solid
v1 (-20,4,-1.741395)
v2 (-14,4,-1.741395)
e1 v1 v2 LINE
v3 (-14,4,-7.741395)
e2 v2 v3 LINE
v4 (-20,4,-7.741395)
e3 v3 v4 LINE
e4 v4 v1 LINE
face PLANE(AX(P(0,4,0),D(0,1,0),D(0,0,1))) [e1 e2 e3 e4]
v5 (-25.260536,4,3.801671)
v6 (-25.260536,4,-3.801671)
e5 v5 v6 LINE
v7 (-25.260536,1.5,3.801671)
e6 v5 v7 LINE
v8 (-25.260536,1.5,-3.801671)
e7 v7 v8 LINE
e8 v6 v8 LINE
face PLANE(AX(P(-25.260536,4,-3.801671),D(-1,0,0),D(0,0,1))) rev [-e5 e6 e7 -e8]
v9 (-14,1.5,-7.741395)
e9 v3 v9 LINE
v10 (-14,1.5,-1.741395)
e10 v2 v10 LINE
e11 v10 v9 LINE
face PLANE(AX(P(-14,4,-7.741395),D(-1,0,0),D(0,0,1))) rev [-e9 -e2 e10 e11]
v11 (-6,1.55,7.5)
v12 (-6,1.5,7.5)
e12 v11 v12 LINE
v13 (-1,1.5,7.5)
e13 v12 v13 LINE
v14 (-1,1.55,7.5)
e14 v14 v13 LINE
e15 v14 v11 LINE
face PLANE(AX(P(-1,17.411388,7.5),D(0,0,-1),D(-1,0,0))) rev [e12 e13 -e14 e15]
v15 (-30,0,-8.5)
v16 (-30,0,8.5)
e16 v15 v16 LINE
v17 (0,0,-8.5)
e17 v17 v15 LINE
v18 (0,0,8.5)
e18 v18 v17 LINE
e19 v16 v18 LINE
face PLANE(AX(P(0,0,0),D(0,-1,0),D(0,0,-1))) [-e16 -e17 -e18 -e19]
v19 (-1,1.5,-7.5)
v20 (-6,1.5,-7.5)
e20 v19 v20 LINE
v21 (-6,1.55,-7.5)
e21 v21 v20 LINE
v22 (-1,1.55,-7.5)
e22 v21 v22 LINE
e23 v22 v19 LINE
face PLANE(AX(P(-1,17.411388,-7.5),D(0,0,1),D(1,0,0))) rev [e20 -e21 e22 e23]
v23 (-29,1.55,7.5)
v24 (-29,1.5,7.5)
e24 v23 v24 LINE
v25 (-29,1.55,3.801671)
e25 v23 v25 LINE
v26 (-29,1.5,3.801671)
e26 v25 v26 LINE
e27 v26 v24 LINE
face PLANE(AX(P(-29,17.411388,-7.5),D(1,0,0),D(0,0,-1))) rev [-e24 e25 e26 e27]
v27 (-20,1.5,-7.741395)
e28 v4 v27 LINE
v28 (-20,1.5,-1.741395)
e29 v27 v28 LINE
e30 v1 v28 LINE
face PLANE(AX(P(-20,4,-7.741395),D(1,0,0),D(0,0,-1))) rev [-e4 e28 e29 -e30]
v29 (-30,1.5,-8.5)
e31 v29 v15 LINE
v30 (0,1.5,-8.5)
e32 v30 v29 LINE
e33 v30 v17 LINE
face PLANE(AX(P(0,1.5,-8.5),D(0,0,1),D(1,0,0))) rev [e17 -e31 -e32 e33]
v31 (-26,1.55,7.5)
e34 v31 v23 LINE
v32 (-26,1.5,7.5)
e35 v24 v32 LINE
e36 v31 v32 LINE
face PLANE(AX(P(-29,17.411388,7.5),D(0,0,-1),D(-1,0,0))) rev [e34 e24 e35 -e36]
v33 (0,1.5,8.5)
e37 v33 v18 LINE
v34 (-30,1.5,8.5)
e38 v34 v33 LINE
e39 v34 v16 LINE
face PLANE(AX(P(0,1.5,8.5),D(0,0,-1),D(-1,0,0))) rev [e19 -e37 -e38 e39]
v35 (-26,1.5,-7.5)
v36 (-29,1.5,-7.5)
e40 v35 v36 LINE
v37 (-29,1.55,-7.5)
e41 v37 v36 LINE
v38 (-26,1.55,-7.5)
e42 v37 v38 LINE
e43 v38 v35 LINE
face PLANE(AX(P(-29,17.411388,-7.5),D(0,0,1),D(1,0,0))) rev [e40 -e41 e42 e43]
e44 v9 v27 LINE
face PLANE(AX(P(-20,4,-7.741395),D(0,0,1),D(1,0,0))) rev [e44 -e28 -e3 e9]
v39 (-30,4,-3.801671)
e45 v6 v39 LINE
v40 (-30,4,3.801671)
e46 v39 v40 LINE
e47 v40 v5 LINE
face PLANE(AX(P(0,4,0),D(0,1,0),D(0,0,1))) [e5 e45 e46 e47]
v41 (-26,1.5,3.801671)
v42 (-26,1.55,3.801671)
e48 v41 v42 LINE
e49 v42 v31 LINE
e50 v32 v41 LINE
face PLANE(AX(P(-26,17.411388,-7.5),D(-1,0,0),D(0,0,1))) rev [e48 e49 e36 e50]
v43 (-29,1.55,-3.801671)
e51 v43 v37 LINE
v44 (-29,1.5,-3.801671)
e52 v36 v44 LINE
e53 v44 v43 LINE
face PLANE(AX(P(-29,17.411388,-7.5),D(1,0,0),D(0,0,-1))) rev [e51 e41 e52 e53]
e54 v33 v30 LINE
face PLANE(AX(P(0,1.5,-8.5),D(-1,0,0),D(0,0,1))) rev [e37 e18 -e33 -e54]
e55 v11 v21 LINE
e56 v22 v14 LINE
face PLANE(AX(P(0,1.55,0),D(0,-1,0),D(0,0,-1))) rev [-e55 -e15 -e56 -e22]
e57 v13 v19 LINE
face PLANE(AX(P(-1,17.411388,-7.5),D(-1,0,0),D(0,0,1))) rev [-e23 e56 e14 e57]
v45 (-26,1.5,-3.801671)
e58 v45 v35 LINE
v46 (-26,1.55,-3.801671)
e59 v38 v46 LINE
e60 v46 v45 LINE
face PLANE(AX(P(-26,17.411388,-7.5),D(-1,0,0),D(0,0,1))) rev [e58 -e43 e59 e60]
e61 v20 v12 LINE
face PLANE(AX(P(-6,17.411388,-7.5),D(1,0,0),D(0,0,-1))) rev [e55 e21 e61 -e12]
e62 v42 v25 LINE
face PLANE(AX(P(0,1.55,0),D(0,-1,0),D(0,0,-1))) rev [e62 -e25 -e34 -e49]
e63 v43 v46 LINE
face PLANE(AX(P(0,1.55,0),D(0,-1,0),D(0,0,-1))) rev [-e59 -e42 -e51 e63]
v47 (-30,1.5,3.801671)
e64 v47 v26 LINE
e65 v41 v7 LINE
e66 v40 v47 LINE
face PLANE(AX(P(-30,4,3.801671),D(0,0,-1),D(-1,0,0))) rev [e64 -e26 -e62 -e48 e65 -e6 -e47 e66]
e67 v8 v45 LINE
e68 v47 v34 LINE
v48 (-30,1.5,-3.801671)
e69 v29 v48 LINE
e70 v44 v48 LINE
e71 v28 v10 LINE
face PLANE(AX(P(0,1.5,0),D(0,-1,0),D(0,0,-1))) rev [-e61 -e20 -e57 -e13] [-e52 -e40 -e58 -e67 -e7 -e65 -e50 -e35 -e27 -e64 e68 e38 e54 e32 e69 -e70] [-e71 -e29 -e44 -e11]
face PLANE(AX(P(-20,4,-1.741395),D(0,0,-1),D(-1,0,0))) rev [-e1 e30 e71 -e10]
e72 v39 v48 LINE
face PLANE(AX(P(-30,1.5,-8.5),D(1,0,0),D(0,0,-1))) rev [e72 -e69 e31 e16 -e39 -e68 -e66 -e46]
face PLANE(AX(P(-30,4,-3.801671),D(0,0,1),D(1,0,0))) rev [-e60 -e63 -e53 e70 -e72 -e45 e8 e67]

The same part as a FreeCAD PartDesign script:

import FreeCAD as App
import Part
import Sketcher


def add_polygon(sketch, points):
    """Adds a closed chain of lines whose ends are joined by coincident constraints."""
    first, n = sketch.GeometryCount, len(points)
    for a, b in zip(points, points[1:] + points[:1]):
        sketch.addGeometry(Part.LineSegment(App.Vector(*a, 0), App.Vector(*b, 0)), False)
    for i in range(n):
        sketch.addConstraint(Sketcher.Constraint("Coincident", first + i, 2, first + (i + 1) % n, 1))

doc = App.newDocument("Part")
body = doc.addObject("PartDesign::Body", "Body")

# Sketch on XZ plane
sketch1 = body.newObject("Sketcher::SketchObject", "Sketch")
sketch1.AttachmentSupport = (doc.getObject("XZ_Plane"), [""])
sketch1.MapMode = "FlatFace"
add_polygon(sketch1, [(-30, -8.5), (-30, 8.5), (0, 8.5), (0, -8.5)])  # lines 0-3
sketch1.addConstraint([
    Sketcher.Constraint("Vertical", 0),
    Sketcher.Constraint("Horizontal", 1),
    Sketcher.Constraint("Vertical", 2),
    Sketcher.Constraint("Horizontal", 3),
    Sketcher.Constraint("Symmetric", 1, 2, 2, 2, -1, 1),
    Sketcher.Constraint("DistanceX", 1, 1, 1, 2, 30.0),
    Sketcher.Constraint("DistanceY", 0, 1, 0, 2, 17.0),
])
pad1 = body.newObject("PartDesign::Pad", "Pad")
pad1.Profile = sketch1
pad1.Length = 1.5
pad1.Reversed = True

# Sketch on XZ plane
sketch2 = body.newObject("Sketcher::SketchObject", "Sketch001")
sketch2.AttachmentSupport = (doc.getObject("XZ_Plane"), [""])
sketch2.MapMode = "FlatFace"
add_polygon(sketch2, [(-20, -7.741395), (-20, -1.741395), (-14, -1.741395), (-14, -7.741395)])  # lines 0-3
add_polygon(sketch2, [(-30, -3.801671), (-30, 3.801671), (-25.260536, 3.801671), (-25.260536, -3.801671)])  # lines 4-7
sketch2.addConstraint([
    Sketcher.Constraint("Vertical", 0),
    Sketcher.Constraint("Horizontal", 1),
    Sketcher.Constraint("Vertical", 2),
    Sketcher.Constraint("Horizontal", 3),
    Sketcher.Constraint("Vertical", 4),
    Sketcher.Constraint("Horizontal", 5),
    Sketcher.Constraint("Vertical", 6),
    Sketcher.Constraint("Horizontal", 7),
    Sketcher.Constraint("Equal", 3, 0),
    Sketcher.Constraint("DistanceX", 1, 1, 1, 2, 6.0),
    Sketcher.Constraint("DistanceX", 0, 2, -1, 1, 20.0),
    Sketcher.Constraint("DistanceX", 4, 2, -1, 1, 30.0),
    Sketcher.Constraint("DistanceY", 4, 1, 4, 2, 7.603341),
    Sketcher.Constraint("DistanceX", 5, 1, 5, 2, 4.739464),
    Sketcher.Constraint("DistanceY", -1, 1, 4, 2, 3.801671),
    Sketcher.Constraint("DistanceY", 0, 2, -1, 1, 1.741395),
])
pad2 = body.newObject("PartDesign::Pad", "Pad001")
pad2.Profile = sketch2
pad2.Length = 4
pad2.Reversed = True

# Sketch on XZ plane
sketch3 = body.newObject("Sketcher::SketchObject", "Sketch002")
sketch3.AttachmentSupport = (doc.getObject("XZ_Plane"), [""])
sketch3.MapMode = "FlatFace"
add_polygon(sketch3, [(-6, -7.5), (-6, 7.5), (-1, 7.5), (-1, -7.5)])  # lines 0-3
add_polygon(sketch3, [(-29, -7.5), (-29, 7.5), (-26, 7.5), (-26, -7.5)])  # lines 4-7
sketch3.addConstraint([
    Sketcher.Constraint("Vertical", 0),
    Sketcher.Constraint("Horizontal", 1),
    Sketcher.Constraint("Vertical", 2),
    Sketcher.Constraint("Horizontal", 3),
    Sketcher.Constraint("Vertical", 4),
    Sketcher.Constraint("Horizontal", 5),
    Sketcher.Constraint("Vertical", 6),
    Sketcher.Constraint("Horizontal", 7),
    Sketcher.Constraint("Horizontal", 1, 2, 4, 2),
    Sketcher.Constraint("Horizontal", 3, 2, 6, 2),
    Sketcher.Constraint("DistanceX", 1, 1, 1, 2, 5.0),
    Sketcher.Constraint("DistanceX", 5, 1, 5, 2, 3.0),
    Sketcher.Constraint("DistanceY", 0, 1, 0, 2, 15.0),
    Sketcher.Constraint("DistanceX", 0, 2, -1, 1, 6.0),
    Sketcher.Constraint("DistanceX", 4, 2, -1, 1, 29.0),
    Sketcher.Constraint("DistanceY", -1, 1, 0, 2, 7.5),
])
pad3 = body.newObject("PartDesign::Pad", "Pad002")
pad3.Profile = sketch3
pad3.Length = 1.55
pad3.Reversed = True

doc.recompute()
